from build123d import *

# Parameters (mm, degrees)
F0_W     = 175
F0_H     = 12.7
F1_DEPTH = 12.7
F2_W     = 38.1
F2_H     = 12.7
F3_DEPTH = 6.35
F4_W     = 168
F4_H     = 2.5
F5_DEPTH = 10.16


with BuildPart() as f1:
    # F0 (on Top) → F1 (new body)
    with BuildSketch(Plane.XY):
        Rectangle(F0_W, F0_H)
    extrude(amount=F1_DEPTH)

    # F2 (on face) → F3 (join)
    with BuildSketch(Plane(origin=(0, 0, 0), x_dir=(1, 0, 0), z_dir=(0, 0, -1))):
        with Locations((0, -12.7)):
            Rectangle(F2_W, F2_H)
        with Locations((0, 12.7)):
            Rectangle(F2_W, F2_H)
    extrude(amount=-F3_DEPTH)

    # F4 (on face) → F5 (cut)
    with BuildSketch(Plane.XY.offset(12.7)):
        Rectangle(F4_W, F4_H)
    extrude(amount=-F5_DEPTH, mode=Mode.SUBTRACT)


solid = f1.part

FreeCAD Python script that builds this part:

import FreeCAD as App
import Part
import Sketcher
from FreeCAD import Vector
Q = App.Units.Quantity


def add_polygon(sketch, points):
    """Adds a closed chain of lines whose ends are joined by coincident constraints."""
    first, n = sketch.GeometryCount, len(points)
    for a, b in zip(points, points[1:] + points[:1]):
        sketch.addGeometry(Part.LineSegment(App.Vector(*a, 0), App.Vector(*b, 0)), False)
    for i in range(n):
        sketch.addConstraint(Sketcher.Constraint("Coincident", first + i, 2, first + (i + 1) % n, 1))

doc = App.newDocument("Part")
body = doc.addObject("PartDesign::Body", "Body")

# Sketch on XY plane
sketch1 = body.newObject("Sketcher::SketchObject", "Sketch")
sketch1.AttachmentSupport = (doc.getObject("XY_Plane"), [""])
sketch1.MapMode = "FlatFace"
add_polygon(sketch1, [(-87.5, 6.35), (-87.5, -6.35), (87.5, -6.35), (87.5, 6.35)])  # lines 0-3
sketch1.addConstraint(Sketcher.Constraint("Vertical", 0))
sketch1.addConstraint(Sketcher.Constraint("Horizontal", 1))
sketch1.addConstraint(Sketcher.Constraint("Vertical", 2))
sketch1.addConstraint(Sketcher.Constraint("Horizontal", 3))
sketch1.addConstraint(Sketcher.Constraint("Symmetric", 0, 2, 2, 2, -1, 1))
sketch1.addConstraint(Sketcher.Constraint("DistanceY", 0, 2, 0, 1, Q("0.5 in")))
sketch1.addConstraint(Sketcher.Constraint("DistanceX", 1, 1, 1, 2, 175.0))
pad1 = body.newObject("PartDesign::Pad", "Pad")
pad1.Profile = sketch1
pad1.Length = Q("0.5 in")

# Sketch on XY plane
sketch2 = body.newObject("Sketcher::SketchObject", "Sketch001")
sketch2.AttachmentSupport = (doc.getObject("XY_Plane"), [""])
sketch2.MapMode = "FlatFace"
add_polygon(sketch2, [(-19.05, 6.35), (-19.05, 19.05), (19.05, 19.05), (19.05, 6.35)])  # lines 0-3
add_polygon(sketch2, [(-19.05, -19.05), (-19.05, -6.35), (19.05, -6.35), (19.05, -19.05)])  # lines 4-7
sketch2.addConstraint(Sketcher.Constraint("Vertical", 0))
sketch2.addConstraint(Sketcher.Constraint("Horizontal", 1))
sketch2.addConstraint(Sketcher.Constraint("Vertical", 2))
sketch2.addConstraint(Sketcher.Constraint("Horizontal", 3))
sketch2.addConstraint(Sketcher.Constraint("Vertical", 4))
sketch2.addConstraint(Sketcher.Constraint("Horizontal", 5))
sketch2.addConstraint(Sketcher.Constraint("Vertical", 6))
sketch2.addConstraint(Sketcher.Constraint("Horizontal", 7))
sketch2.addConstraint(Sketcher.Constraint("Symmetric", 2, 2, 4, 2, -1, 1))
sketch2.addConstraint(Sketcher.Constraint("Symmetric", 0, 2, 6, 2, -1, 1))
sketch2.addConstraint(Sketcher.Constraint("Vertical", 3, 2, 4, 2))
sketch2.addConstraint(Sketcher.Constraint("DistanceX", 1, 1, 1, 2, Q("1.5 in")))
sketch2.addConstraint(Sketcher.Constraint("DistanceY", 0, 1, 0, 2, Q("0.5 in")))
sketch2.addConstraint(Sketcher.Constraint("DistanceY", 4, 2, 0, 2, Q("1 in")))
pad2 = body.newObject("PartDesign::Pad", "Pad001")
pad2.Profile = sketch2
pad2.Length = Q("0.25 in")

# Sketch on XY plane
sketch3 = body.newObject("Sketcher::SketchObject", "Sketch002")
sketch3.AttachmentSupport = (doc.getObject("XY_Plane"), [""])
sketch3.MapMode = "FlatFace"
sketch3.AttachmentOffset = App.Placement(Vector(0, 0, 0.5 * 25.4), App.Rotation())
add_polygon(sketch3, [(-84, 1.25), (-84, -1.25), (84, -1.25), (84, 1.25)])  # lines 0-3
sketch3.addConstraint(Sketcher.Constraint("Vertical", 0))
sketch3.addConstraint(Sketcher.Constraint("Horizontal", 1))
sketch3.addConstraint(Sketcher.Constraint("Vertical", 2))
sketch3.addConstraint(Sketcher.Constraint("Horizontal", 3))
sketch3.addConstraint(Sketcher.Constraint("Symmetric", 0, 2, 2, 2, -1, 1))
sketch3.addConstraint(Sketcher.Constraint("DistanceX", 1, 1, 1, 2, 168.0))
sketch3.addConstraint(Sketcher.Constraint("DistanceY", 0, 2, 0, 1, 2.5))
pocket1 = body.newObject("PartDesign::Pocket", "Pocket")
pocket1.Profile = sketch3
pocket1.Length = Q("0.4 in")

doc.recompute()
